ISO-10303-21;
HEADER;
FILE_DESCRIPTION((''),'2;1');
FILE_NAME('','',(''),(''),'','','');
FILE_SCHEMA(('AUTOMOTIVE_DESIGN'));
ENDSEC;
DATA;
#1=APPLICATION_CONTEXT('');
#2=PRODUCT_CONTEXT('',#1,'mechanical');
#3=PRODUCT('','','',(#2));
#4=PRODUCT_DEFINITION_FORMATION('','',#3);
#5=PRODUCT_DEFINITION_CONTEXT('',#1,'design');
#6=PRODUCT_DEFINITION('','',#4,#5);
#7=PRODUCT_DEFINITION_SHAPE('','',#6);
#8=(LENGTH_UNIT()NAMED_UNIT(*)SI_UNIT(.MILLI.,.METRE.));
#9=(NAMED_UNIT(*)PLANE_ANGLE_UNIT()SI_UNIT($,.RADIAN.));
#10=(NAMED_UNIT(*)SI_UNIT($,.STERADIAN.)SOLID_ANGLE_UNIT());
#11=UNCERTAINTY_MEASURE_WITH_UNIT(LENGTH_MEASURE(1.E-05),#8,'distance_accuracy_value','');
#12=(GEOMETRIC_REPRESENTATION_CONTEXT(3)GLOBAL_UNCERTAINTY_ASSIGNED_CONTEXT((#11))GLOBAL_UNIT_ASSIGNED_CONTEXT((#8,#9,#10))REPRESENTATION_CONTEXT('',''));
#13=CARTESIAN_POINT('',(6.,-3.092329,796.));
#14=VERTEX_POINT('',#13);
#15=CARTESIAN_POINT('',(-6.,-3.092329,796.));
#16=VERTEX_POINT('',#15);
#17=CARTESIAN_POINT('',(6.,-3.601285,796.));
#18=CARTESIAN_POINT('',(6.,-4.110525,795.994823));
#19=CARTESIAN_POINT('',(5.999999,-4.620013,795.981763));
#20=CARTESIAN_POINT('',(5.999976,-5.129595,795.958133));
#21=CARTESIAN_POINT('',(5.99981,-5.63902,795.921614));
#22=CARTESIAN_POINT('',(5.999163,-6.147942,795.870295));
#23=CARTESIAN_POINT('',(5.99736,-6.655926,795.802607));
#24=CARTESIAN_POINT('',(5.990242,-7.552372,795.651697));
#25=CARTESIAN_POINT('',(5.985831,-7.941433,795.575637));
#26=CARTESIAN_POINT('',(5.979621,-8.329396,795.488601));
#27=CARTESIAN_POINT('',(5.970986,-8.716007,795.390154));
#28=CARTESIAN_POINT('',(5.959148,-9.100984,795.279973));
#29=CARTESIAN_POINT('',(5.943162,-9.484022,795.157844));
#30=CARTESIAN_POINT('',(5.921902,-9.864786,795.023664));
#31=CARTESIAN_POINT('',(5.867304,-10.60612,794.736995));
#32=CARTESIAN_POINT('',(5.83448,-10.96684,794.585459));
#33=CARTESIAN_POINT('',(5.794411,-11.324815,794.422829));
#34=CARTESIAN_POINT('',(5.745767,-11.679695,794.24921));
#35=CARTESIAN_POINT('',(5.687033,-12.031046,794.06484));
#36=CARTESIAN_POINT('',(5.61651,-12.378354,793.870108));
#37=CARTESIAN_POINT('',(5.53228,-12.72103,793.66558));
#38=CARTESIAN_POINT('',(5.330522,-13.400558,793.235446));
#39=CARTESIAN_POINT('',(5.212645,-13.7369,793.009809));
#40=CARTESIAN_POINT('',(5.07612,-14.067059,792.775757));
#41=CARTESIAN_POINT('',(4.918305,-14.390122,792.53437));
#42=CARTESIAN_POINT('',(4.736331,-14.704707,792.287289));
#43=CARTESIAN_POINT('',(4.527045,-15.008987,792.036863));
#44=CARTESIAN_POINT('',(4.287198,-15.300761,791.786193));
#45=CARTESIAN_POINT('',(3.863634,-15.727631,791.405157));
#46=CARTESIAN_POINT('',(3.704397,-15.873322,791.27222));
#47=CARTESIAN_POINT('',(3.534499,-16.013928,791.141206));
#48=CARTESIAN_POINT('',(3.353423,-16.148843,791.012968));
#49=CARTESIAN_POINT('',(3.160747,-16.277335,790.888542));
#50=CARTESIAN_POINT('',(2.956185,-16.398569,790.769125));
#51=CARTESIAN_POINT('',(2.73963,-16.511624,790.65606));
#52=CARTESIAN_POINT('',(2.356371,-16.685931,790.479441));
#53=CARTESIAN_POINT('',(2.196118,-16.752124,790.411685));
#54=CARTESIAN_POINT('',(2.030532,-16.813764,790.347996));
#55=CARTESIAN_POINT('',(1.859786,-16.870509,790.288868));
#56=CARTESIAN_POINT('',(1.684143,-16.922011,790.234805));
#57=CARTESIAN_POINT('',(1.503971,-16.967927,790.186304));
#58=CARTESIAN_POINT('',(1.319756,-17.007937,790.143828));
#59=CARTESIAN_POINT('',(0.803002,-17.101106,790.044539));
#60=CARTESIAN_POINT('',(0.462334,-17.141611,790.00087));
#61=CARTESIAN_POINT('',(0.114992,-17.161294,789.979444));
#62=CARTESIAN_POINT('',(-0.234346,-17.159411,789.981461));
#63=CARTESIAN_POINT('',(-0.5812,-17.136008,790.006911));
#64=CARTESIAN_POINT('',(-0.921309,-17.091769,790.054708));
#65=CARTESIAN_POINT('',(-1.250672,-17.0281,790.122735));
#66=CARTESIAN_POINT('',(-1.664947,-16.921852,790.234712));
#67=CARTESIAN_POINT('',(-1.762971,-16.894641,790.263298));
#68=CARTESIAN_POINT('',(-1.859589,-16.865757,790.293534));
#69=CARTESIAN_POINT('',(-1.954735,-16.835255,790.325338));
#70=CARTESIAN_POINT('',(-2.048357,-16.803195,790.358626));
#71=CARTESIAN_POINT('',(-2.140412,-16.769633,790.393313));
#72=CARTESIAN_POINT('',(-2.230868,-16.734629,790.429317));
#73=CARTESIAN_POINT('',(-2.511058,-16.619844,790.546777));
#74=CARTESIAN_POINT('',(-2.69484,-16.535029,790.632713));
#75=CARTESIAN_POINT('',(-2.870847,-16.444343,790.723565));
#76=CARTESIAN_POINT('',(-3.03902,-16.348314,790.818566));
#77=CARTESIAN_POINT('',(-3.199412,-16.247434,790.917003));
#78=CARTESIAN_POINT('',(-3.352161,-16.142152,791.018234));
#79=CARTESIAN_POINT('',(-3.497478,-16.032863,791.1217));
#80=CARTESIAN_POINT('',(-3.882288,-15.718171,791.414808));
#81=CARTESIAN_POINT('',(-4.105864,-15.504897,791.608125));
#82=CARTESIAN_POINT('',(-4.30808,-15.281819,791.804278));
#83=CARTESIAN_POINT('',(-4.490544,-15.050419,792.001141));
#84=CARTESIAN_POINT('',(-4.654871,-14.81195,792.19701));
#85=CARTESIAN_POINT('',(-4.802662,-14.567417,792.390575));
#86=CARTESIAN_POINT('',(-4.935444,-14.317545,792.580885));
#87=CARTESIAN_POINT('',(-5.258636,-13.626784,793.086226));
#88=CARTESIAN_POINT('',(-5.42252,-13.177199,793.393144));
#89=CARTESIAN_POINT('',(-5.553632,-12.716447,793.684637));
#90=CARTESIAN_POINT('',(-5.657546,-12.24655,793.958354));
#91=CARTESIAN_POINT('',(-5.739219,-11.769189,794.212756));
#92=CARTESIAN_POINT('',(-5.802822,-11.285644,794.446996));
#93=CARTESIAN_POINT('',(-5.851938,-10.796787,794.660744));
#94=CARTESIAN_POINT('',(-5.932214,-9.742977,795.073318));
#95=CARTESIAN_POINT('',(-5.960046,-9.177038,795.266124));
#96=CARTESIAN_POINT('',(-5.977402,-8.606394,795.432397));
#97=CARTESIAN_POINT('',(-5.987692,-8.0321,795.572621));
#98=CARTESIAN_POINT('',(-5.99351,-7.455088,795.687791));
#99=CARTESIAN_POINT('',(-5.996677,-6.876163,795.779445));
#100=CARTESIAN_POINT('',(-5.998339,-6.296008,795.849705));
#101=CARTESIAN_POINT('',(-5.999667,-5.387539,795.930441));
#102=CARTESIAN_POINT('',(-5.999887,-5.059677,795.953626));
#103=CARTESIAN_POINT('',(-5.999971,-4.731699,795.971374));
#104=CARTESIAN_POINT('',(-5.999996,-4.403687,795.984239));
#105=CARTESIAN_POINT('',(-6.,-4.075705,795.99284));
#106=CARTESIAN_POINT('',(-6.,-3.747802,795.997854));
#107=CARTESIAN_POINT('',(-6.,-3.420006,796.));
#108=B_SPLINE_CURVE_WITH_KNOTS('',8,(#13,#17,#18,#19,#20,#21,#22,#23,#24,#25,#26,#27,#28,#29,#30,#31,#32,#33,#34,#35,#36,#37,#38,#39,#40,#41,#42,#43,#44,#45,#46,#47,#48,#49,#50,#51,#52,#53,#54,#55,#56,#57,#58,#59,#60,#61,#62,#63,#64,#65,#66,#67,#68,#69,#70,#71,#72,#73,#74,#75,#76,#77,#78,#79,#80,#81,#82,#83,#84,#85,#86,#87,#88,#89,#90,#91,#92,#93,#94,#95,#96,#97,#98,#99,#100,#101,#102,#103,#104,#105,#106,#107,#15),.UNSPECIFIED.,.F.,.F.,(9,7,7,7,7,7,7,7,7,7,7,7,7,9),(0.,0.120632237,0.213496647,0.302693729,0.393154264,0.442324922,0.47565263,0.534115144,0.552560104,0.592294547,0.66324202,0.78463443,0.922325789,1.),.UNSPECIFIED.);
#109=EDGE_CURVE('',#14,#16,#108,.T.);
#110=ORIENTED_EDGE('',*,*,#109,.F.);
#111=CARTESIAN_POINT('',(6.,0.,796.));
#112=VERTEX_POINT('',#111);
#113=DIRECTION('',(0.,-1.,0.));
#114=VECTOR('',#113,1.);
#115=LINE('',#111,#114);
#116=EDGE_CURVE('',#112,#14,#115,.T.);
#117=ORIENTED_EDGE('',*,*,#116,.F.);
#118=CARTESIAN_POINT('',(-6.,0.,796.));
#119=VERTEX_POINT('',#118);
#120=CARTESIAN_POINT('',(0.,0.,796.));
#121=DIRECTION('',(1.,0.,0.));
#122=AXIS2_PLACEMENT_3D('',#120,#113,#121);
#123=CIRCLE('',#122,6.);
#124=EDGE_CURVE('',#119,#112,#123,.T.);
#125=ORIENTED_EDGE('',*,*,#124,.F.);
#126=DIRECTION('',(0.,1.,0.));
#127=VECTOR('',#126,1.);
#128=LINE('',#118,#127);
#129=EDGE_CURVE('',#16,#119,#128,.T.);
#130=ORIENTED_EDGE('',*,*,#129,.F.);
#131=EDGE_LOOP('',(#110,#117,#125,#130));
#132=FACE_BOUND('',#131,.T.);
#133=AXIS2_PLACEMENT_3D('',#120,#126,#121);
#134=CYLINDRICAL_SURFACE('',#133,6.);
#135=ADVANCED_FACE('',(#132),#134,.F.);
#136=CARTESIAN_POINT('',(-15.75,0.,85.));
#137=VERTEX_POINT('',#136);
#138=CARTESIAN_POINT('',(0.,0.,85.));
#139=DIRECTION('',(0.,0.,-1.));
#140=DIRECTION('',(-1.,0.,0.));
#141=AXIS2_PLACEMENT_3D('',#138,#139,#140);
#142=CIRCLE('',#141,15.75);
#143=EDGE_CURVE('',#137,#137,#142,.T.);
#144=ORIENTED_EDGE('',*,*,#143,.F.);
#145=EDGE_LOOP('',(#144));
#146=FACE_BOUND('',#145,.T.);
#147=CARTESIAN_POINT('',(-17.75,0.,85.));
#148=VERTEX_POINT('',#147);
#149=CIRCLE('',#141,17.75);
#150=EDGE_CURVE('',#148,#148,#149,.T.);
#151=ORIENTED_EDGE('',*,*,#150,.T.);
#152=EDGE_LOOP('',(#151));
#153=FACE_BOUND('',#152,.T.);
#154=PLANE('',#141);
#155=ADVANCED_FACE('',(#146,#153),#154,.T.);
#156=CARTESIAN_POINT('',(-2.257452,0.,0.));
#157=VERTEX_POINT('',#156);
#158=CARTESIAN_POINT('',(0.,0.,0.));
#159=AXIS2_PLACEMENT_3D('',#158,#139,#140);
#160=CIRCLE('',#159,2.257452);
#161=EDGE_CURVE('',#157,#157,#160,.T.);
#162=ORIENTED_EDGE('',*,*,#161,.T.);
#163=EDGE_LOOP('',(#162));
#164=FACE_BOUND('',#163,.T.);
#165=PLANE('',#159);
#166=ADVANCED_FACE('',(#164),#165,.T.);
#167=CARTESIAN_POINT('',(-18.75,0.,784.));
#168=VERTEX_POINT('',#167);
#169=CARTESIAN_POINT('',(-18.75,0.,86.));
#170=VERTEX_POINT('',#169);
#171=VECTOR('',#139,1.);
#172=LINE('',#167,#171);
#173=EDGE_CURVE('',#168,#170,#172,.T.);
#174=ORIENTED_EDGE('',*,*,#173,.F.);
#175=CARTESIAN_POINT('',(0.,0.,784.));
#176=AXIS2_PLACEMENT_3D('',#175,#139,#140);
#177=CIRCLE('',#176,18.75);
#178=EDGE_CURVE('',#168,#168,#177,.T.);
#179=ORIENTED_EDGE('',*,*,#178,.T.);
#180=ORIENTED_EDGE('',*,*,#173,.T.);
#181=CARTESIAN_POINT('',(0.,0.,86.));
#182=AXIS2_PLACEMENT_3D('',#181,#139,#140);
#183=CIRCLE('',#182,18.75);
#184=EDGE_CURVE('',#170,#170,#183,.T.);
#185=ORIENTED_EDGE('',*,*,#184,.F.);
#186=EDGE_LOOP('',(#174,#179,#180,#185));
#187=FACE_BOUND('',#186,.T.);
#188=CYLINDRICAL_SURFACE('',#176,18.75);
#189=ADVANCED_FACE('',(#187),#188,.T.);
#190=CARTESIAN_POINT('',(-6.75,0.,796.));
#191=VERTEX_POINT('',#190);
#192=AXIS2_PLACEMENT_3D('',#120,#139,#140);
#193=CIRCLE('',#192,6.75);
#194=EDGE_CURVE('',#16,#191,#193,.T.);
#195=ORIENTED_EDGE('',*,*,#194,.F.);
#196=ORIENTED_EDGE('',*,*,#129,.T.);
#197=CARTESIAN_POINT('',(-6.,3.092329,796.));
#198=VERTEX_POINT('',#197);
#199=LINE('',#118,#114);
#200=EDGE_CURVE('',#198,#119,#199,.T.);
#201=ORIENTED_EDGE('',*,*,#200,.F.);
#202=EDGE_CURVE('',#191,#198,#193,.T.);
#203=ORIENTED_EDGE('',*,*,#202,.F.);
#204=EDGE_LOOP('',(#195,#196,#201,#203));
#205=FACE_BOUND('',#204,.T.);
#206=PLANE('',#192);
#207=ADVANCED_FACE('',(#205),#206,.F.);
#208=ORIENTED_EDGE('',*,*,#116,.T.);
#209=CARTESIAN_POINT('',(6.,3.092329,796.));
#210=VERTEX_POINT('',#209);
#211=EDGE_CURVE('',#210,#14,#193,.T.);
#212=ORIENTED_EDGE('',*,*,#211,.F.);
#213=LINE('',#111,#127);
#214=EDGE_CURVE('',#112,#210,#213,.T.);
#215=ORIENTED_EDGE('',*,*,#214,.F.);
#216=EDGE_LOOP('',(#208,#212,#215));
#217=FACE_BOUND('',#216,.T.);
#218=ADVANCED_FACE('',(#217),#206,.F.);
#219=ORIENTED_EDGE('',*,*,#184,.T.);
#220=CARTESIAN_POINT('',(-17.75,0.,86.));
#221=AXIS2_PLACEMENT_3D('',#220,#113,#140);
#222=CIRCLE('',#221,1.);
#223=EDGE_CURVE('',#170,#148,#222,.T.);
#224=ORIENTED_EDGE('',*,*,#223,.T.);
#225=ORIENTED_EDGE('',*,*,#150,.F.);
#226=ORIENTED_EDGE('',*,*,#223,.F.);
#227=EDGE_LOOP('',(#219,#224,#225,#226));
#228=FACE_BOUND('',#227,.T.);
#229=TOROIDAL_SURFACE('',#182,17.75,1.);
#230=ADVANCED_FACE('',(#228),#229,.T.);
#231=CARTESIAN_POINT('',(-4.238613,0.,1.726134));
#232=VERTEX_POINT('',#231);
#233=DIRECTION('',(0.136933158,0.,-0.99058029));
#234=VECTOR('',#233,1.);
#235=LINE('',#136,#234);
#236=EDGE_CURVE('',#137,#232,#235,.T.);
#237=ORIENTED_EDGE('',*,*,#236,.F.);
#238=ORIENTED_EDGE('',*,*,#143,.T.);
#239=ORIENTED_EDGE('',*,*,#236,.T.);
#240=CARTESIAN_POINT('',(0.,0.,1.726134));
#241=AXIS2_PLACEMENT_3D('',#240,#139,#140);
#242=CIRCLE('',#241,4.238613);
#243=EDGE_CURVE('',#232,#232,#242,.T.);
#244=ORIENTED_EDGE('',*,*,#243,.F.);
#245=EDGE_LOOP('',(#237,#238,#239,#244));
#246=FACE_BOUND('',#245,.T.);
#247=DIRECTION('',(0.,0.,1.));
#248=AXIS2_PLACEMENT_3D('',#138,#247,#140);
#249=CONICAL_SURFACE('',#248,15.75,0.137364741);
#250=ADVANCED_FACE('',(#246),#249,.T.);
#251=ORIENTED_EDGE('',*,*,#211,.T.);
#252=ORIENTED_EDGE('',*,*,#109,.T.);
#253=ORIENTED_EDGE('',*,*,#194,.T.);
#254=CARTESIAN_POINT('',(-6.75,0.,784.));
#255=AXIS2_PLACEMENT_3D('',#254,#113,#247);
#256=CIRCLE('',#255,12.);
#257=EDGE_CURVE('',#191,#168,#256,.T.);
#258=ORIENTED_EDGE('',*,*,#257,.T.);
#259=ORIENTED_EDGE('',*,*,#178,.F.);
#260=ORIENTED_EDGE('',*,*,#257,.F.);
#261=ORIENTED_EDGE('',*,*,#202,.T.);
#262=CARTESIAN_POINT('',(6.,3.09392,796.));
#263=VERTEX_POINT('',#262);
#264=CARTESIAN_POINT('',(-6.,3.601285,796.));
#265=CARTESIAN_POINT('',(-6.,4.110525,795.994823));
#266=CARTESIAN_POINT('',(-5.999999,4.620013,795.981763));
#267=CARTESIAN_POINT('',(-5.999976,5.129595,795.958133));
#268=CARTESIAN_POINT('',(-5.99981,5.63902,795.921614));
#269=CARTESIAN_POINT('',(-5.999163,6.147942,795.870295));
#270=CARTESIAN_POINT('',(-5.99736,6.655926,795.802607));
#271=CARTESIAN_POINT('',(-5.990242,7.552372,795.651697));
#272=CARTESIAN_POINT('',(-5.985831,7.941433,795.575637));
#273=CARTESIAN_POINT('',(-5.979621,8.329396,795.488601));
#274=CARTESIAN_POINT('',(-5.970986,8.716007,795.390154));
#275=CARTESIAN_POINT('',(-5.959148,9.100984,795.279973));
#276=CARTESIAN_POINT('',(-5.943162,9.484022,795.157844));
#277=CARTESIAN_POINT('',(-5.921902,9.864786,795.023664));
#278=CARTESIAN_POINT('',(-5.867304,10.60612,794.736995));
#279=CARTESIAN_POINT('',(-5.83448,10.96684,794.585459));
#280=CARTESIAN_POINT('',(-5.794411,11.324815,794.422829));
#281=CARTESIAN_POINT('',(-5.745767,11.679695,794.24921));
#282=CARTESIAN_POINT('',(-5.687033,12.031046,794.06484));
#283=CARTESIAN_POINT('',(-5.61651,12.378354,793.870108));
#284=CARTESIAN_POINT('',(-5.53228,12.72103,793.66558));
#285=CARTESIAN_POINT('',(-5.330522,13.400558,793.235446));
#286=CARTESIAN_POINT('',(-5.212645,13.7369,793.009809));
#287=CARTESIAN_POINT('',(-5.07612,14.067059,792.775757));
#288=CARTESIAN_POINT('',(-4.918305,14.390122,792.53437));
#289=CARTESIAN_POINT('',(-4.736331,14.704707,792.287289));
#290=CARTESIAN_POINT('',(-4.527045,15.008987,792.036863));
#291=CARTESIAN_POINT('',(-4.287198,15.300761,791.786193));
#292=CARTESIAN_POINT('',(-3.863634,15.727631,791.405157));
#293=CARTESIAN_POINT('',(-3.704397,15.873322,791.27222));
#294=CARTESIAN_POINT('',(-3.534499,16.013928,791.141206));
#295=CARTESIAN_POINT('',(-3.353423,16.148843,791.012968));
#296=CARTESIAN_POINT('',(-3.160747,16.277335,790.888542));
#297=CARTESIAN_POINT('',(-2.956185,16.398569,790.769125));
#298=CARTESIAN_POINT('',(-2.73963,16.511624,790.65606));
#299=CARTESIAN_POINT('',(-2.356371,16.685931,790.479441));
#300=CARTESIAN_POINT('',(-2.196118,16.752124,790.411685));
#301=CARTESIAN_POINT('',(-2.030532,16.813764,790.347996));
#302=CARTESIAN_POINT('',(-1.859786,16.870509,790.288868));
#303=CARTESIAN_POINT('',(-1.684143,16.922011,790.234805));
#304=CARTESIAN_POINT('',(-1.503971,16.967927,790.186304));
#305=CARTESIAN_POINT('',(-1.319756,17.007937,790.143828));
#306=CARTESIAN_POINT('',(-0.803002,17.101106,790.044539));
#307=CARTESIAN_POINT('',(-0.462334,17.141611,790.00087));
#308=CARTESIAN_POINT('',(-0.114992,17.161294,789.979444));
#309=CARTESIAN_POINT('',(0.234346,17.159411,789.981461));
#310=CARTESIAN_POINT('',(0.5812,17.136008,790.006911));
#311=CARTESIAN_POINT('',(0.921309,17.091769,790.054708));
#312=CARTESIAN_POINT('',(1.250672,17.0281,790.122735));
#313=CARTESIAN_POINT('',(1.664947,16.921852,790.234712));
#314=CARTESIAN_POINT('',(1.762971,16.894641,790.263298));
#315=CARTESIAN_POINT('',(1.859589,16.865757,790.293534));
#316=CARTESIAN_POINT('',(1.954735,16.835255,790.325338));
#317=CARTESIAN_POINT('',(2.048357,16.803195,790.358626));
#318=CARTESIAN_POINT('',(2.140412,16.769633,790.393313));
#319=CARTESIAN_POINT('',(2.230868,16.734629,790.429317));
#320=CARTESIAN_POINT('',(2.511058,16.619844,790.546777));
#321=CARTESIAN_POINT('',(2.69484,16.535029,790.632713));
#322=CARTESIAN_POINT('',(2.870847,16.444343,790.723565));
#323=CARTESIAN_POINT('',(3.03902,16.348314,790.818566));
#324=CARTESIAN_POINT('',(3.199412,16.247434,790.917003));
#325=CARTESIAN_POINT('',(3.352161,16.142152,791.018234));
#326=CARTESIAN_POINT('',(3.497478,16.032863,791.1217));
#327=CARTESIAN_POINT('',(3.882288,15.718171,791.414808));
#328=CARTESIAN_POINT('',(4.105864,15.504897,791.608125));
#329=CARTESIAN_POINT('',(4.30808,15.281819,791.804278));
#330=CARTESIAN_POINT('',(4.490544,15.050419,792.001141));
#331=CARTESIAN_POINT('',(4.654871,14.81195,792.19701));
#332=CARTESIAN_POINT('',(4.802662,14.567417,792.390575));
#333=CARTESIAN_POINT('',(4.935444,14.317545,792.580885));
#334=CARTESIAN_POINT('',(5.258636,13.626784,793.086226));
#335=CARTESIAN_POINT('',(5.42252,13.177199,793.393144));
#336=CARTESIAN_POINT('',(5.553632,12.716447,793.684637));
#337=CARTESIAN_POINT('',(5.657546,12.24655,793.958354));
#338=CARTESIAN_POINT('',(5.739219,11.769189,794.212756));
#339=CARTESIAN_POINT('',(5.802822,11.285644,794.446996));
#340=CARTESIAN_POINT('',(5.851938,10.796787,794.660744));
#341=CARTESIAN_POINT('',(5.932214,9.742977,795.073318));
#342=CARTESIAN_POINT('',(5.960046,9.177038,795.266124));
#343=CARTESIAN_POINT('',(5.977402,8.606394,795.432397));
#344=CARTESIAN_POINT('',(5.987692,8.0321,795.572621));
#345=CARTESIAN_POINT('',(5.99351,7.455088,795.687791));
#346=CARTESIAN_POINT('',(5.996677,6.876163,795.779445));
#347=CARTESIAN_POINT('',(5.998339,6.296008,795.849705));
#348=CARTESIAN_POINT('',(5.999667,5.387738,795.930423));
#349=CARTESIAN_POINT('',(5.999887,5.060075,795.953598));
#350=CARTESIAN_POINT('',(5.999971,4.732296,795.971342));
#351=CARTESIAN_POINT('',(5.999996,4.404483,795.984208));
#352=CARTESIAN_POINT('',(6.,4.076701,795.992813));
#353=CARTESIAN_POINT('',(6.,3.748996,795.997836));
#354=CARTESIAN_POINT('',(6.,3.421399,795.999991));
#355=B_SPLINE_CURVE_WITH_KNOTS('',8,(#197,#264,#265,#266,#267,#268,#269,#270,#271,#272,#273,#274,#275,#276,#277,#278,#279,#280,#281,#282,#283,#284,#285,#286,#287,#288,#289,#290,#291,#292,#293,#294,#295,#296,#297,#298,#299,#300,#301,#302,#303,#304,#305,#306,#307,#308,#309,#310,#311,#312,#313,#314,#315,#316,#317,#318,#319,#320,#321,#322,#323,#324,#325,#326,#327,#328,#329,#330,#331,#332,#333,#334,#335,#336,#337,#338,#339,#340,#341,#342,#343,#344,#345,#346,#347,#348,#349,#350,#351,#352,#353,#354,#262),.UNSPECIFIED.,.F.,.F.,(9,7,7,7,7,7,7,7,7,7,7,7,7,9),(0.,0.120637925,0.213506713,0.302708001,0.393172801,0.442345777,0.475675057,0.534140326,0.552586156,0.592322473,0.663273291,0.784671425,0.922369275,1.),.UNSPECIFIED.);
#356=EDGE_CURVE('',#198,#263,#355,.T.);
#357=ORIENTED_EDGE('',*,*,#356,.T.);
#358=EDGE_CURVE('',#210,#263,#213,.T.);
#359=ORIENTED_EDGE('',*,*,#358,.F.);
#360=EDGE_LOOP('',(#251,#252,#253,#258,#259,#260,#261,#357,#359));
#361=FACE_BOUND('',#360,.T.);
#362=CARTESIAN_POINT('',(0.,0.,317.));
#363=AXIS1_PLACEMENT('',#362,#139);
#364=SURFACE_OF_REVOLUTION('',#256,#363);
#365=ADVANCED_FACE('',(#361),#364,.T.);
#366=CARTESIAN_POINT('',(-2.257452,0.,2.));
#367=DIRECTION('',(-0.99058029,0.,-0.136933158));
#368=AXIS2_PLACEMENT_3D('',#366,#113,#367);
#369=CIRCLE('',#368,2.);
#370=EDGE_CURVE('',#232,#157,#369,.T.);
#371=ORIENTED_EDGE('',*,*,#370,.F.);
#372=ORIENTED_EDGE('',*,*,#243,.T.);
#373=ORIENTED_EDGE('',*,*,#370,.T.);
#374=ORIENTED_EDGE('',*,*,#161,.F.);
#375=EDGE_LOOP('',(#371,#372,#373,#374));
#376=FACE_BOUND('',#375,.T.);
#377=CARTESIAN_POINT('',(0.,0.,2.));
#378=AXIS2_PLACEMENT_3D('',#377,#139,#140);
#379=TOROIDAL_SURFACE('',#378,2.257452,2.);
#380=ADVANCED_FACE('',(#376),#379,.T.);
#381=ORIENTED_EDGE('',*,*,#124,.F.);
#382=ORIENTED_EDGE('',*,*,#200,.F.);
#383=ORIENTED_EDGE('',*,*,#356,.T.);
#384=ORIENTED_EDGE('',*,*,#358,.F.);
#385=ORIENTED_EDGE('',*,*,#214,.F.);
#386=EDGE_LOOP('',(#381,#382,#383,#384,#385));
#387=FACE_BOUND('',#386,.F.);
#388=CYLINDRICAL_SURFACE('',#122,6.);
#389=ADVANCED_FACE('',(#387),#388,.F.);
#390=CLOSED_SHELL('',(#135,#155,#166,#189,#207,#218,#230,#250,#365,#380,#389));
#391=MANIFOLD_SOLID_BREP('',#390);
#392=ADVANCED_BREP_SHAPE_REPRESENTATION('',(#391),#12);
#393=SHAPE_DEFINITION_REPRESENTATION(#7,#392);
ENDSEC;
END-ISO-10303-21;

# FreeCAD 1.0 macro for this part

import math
import FreeCAD as App
import Part
import Sketcher
from FreeCAD import Vector
Q = App.Units.Quantity

doc = App.newDocument("Part")
body = doc.addObject("PartDesign::Body", "Body")

# Sketch on XZ plane
sketch1 = doc.addObject("Sketcher::SketchObject", "Sketch")
body.addObject(sketch1)
sketch1.AttachmentSupport = (doc.XZ_Plane, [""])
sketch1.MapMode = "FlatFace"
sketch1.addGeometry([
    Part.LineSegment(Vector(-18.8, 784, 0), Vector(-18.8, 86, 0)),  # 0
    Part.ArcOfCircle(Part.Circle(Vector(-17.8, 86, 0), Vector(0, 0, 1), 1), math.radians(180), math.radians(270)),  # 1
    Part.LineSegment(Vector(-17.8, 85, 0), Vector(-15.8, 85, 0)),  # 2
    Part.LineSegment(Vector(-15.8, 85, 0), Vector(-4.2, 1.7, 0)),  # 3
    Part.ArcOfCircle(Part.Circle(Vector(-2.3, 2, 0), Vector(0, 0, 1), 2), math.radians(-172), math.radians(-90)),  # 4
    Part.LineSegment(Vector(-2.3, 0, 0), Vector(0, 0, 0)),  # 5
    Part.LineSegment(Vector(0, 0, 0), Vector(0, 796, 0)),  # 6
    Part.LineSegment(Vector(0, 796, 0), Vector(-6.8, 796, 0)),  # 7
    Part.ArcOfCircle(Part.Circle(Vector(-6.8, 784, 0), Vector(0, 0, 1), 12), math.radians(90), math.radians(180)),  # 8
], False)
sketch1.addConstraint([
    Sketcher.Constraint("Tangent", 0, 2, 1, 1),
    Sketcher.Constraint("Tangent", 1, 2, 2, 1),
    Sketcher.Constraint("Coincident", 2, 2, 3, 1),
    Sketcher.Constraint("Tangent", 3, 2, 4, 1),
    Sketcher.Constraint("Tangent", 4, 2, 5, 1),
    Sketcher.Constraint("Coincident", 5, 2, 6, 1),
    Sketcher.Constraint("Coincident", 6, 2, 7, 1),
    Sketcher.Constraint("Tangent", 7, 2, 8, 1),
    Sketcher.Constraint("Tangent", 8, 2, 0, 1),
    Sketcher.Constraint("Vertical", 0),
    Sketcher.Constraint("Horizontal", 2),
    Sketcher.Constraint("Horizontal", 5),
    Sketcher.Constraint("Vertical", 6),
    Sketcher.Constraint("Horizontal", 7),
    Sketcher.Constraint("Coincident", 5, 2, -1, 1),
    Sketcher.Constraint("Radius", 1, Q("1 mm")),
    Sketcher.Constraint("Radius", 4, Q("2 mm")),
    Sketcher.Constraint("Radius", 8, Q("12 mm")),
    Sketcher.Constraint("DistanceX", 2, 1, 2, 2, Q("2 mm")),
    Sketcher.Constraint("DistanceY", 0, 2, 0, 1, Q("698 mm")),
    Sketcher.Constraint("DistanceY", 6, 1, 6, 2, Q("796 mm")),
    Sketcher.Constraint("DistanceX", 7, 2, 7, 1, Q("6.75 mm")),
    Sketcher.Constraint("Distance", 3, Q("84.065741 mm")),
])
revolution = doc.addObject("PartDesign::Revolution", "Revolution")
body.addObject(revolution)
revolution.Profile = sketch1
revolution.ReferenceAxis = (sketch1, ["V_Axis"])
revolution.Angle = 360

# Sketch on XZ plane
sketch2 = doc.addObject("Sketcher::SketchObject", "Sketch001")
body.addObject(sketch2)
sketch2.AttachmentSupport = (doc.XZ_Plane, [""])
sketch2.MapMode = "FlatFace"
sketch2.addGeometry(Part.Circle(Vector(0, 796, 0), Vector(0, 0, 1), 6), False)
sketch2.addConstraint([
    Sketcher.Constraint("PointOnObject", 0, 3, -2),
    Sketcher.Constraint("Diameter", 0, Q("12 mm")),
    Sketcher.Constraint("DistanceY", -1, 1, 0, 3, Q("796 mm")),
])
pocket1 = doc.addObject("PartDesign::Pocket", "Pocket")
body.addObject(pocket1)
pocket1.Profile = sketch2
pocket1.Type = "ThroughAll"
pocket1.Midplane = True

doc.recompute()
